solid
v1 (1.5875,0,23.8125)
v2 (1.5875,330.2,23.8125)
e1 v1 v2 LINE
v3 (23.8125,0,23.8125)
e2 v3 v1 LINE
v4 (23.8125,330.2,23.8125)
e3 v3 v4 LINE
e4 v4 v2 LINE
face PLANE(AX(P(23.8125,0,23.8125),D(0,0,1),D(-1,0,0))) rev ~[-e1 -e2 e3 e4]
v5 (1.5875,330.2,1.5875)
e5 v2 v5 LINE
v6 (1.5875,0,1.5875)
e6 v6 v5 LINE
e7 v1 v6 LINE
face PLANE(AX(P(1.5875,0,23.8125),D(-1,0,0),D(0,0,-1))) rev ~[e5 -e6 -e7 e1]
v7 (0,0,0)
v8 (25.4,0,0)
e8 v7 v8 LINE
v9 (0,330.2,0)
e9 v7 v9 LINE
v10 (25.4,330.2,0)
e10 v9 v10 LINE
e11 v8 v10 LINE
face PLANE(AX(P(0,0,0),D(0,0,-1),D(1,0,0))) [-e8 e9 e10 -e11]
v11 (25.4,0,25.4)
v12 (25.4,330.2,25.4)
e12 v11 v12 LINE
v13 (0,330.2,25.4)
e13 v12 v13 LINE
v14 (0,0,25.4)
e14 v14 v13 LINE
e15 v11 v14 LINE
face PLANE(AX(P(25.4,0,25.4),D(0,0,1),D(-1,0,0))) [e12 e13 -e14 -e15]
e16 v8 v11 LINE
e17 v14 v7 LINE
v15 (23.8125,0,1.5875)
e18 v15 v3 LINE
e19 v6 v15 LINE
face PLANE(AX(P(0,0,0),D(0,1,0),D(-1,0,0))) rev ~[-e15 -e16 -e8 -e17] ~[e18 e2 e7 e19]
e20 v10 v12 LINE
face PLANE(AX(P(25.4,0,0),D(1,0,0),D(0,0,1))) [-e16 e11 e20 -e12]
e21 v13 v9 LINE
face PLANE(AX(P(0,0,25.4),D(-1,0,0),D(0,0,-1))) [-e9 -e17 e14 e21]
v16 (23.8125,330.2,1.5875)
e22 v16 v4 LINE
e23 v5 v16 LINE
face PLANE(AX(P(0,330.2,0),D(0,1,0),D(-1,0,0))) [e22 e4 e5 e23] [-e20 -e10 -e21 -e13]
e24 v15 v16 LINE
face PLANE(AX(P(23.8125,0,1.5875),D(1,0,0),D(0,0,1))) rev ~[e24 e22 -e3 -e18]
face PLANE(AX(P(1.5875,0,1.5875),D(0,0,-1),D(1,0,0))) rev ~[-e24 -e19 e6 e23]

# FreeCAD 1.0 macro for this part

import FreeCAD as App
import Part
import Sketcher

V = App.Vector
Q = App.Units.Quantity


def add_polygon(sketch, points):
    """Adds a closed chain of lines whose ends are joined by coincident constraints."""
    first, n = sketch.GeometryCount, len(points)
    for a, b in zip(points, points[1:] + points[:1]):
        sketch.addGeometry(Part.LineSegment(App.Vector(*a, 0), App.Vector(*b, 0)), False)
    for i in range(n):
        sketch.addConstraint(Sketcher.Constraint("Coincident", first + i, 2, first + (i + 1) % n, 1))

doc = App.newDocument("Part")
params = doc.addObject("Spreadsheet::Sheet", "Params")
for row, (alias, value) in enumerate([
    ("sketch1_width", "1 in"),
    ("pad1_length", "13 in"),
], start=1):
    params.set(f"A{row}", alias)
    params.set(f"B{row}", "=" + value)
    params.setAlias(f"B{row}", alias)

body = doc.addObject("PartDesign::Body", "Body")

# Sketch on XZ plane
sketch1 = body.newObject("Sketcher::SketchObject", "Sketch")
sketch1.AttachmentSupport = (doc.getObject("XZ_Plane"), [""])
sketch1.MapMode = "FlatFace"
add_polygon(sketch1, [(25, 0), (0, 0), (0, 25), (25, 25)])  # lines 0-3
add_polygon(sketch1, [(24, 2), (24, 24), (2, 24), (2, 2)])  # lines 4-7
sketch1.addConstraint([
    Sketcher.Constraint("Horizontal", 0),
    Sketcher.Constraint("Vertical", 1),
    Sketcher.Constraint("Horizontal", 2),
    Sketcher.Constraint("Vertical", 3),
    Sketcher.Constraint("Vertical", 4),
    Sketcher.Constraint("Horizontal", 5),
    Sketcher.Constraint("Vertical", 6),
    Sketcher.Constraint("Horizontal", 7),
    Sketcher.Constraint("Coincident", 0, 2, -1, 1),
    Sketcher.Constraint("Equal", 2, 1),
    Sketcher.Constraint("Equal", 7, 4),
    Sketcher.Constraint("DistanceX", 0, 2, 0, 1, Q("1 in")),
    Sketcher.Constraint("DistanceX", -1, 1, 5, 2, Q("0.0625 in")),
    Sketcher.Constraint("DistanceY", -1, 1, 6, 2, Q("0.0625 in")),
    Sketcher.Constraint("DistanceX", 4, 2, 2, 2, Q("0.0625 in")),
])
sketch1.setExpression("Constraints[19]", "Params.sketch1_width")
pad1 = body.newObject("PartDesign::Pad", "Pad")
pad1.Profile = sketch1
pad1.setExpression("Length", "Params.pad1_length")
pad1.Reversed = True

doc.recompute()
